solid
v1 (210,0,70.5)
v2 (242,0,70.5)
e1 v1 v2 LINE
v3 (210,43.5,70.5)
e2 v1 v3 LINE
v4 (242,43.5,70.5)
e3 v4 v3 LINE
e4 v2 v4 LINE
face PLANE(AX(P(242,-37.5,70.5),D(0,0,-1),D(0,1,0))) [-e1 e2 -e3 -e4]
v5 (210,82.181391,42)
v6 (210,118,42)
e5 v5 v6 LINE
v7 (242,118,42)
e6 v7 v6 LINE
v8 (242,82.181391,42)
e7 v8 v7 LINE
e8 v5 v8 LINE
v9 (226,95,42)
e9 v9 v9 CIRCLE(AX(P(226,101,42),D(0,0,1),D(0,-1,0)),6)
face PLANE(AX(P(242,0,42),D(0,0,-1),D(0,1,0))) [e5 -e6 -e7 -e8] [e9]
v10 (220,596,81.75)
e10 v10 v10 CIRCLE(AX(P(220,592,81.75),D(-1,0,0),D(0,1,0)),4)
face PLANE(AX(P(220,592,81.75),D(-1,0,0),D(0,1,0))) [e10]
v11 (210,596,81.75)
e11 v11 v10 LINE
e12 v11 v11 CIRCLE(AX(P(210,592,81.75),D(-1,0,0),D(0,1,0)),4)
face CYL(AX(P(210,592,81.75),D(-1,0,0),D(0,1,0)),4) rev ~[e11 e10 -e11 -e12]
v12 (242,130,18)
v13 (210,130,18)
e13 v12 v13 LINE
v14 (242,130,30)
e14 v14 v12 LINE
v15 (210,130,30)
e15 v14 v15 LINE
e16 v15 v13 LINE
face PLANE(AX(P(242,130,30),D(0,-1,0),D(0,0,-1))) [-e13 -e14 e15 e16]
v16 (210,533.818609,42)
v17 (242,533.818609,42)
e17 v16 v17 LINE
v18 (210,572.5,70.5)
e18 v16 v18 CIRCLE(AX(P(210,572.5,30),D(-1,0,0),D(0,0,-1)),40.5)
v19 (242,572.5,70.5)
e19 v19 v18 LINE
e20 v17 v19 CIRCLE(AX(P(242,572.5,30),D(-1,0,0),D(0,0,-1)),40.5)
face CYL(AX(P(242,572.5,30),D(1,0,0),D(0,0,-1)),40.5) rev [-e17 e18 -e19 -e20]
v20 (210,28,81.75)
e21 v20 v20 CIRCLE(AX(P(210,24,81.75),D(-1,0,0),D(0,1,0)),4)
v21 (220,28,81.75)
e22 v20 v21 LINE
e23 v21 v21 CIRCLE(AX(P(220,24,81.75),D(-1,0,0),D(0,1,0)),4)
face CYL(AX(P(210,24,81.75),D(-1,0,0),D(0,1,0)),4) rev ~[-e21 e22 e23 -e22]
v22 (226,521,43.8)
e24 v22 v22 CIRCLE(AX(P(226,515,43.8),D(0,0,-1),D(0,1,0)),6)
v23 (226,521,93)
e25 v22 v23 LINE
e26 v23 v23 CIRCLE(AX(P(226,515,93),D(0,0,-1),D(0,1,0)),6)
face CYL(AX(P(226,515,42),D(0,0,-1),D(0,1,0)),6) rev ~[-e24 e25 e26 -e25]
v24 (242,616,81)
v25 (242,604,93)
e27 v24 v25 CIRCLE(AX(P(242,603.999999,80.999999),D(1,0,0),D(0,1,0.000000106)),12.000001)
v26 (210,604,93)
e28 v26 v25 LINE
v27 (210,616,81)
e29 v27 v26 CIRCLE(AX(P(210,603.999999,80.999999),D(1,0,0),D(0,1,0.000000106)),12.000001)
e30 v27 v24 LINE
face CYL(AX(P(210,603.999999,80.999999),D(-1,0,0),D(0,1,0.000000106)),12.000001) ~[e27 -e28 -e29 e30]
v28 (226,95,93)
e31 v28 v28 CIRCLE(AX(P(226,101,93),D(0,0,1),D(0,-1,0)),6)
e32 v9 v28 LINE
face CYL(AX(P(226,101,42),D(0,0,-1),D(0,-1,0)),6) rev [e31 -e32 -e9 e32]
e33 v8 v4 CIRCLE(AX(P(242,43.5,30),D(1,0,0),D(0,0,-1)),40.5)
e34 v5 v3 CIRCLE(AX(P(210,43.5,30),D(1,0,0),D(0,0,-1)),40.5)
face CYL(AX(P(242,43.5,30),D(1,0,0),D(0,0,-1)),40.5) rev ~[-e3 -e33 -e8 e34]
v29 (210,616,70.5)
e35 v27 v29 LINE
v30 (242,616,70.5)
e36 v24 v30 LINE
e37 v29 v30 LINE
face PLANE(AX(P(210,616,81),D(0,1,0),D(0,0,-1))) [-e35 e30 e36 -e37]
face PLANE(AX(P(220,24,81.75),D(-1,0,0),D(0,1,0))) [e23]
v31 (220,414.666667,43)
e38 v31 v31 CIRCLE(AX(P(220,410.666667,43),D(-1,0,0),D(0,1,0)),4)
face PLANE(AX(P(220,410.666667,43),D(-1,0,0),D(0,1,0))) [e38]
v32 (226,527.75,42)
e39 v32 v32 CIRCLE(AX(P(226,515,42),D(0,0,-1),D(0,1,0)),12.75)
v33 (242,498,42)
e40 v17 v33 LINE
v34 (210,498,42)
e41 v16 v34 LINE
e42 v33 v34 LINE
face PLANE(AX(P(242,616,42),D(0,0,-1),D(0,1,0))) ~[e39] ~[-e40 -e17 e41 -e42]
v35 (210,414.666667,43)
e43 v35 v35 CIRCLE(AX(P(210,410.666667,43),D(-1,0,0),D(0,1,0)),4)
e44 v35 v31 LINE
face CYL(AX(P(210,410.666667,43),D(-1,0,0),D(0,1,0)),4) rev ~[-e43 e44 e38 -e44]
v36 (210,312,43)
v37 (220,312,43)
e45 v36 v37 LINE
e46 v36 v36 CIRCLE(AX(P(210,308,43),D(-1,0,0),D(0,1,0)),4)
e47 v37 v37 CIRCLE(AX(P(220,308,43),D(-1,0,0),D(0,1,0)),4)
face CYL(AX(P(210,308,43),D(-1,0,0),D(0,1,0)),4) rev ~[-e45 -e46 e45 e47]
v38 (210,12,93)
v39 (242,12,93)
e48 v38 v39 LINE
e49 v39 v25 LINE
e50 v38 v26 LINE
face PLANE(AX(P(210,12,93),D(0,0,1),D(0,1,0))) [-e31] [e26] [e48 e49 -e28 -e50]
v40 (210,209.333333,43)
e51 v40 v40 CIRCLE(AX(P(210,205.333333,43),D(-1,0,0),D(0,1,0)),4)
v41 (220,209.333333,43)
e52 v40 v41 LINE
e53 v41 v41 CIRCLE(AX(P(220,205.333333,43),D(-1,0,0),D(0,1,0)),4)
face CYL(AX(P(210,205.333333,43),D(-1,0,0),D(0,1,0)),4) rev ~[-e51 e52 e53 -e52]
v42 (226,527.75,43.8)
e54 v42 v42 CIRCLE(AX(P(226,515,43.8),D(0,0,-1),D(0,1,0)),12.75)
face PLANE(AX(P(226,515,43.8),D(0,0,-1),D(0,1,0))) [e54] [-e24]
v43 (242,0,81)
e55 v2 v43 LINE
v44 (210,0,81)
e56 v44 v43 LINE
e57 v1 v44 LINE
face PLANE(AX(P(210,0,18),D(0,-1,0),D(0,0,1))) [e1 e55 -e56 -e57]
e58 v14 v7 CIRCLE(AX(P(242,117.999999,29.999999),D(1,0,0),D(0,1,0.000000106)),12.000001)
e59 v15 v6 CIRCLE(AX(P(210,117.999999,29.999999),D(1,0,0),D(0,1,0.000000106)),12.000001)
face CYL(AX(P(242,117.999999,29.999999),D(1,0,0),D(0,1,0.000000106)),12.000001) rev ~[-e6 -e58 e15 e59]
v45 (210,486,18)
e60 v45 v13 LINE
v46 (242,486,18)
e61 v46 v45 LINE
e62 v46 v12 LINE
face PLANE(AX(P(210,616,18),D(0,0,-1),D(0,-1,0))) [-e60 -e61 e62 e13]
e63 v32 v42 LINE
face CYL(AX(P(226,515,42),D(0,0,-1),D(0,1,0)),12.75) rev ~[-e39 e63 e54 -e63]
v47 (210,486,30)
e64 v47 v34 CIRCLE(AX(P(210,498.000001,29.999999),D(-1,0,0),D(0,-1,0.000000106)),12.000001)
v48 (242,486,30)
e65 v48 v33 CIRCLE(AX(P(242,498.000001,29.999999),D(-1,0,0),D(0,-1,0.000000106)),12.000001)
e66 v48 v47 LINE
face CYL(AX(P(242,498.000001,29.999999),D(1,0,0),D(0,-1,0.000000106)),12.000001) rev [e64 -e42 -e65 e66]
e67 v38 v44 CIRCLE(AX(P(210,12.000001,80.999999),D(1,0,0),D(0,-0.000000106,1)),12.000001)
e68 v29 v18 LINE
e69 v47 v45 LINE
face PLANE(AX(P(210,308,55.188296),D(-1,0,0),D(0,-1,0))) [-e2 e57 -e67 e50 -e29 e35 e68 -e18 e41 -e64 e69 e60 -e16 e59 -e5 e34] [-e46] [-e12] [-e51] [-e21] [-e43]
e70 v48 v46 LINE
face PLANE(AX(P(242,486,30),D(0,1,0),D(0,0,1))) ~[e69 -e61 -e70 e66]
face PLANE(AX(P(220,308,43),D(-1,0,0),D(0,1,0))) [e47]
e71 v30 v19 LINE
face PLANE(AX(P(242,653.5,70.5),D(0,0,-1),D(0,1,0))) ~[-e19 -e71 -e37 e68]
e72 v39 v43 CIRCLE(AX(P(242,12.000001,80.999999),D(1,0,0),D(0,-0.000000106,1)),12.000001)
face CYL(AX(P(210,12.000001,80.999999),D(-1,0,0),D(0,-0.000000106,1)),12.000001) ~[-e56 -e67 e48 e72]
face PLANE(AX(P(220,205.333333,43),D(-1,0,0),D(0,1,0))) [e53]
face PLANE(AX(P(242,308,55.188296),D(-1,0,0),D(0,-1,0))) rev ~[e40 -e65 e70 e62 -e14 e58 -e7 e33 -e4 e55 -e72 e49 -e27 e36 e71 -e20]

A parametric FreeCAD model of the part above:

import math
import FreeCAD as App
import Part
import Sketcher
from FreeCAD import Vector

doc = App.newDocument("Part")
body = doc.addObject("PartDesign::Body", "Body")

# Sketch on XY plane
sketch1 = body.newObject("Sketcher::SketchObject", "Sketch")
sketch1.AttachmentSupport = (doc.getObject("XY_Plane"), [""])
sketch1.MapMode = "FlatFace"
sketch1.addGeometry(Part.LineSegment(Vector(296, 75, 0), Vector(-296, 75, 0)), False)
sketch1.addGeometry(Part.ArcOfCircle(Part.Circle(Vector(-295.999999, 62.999999, 0), Vector(0, 0, 1), 12.000001), math.radians(90.000006), math.radians(179.999994)), False)
sketch1.addGeometry(Part.LineSegment(Vector(-308, 63, 0), Vector(-308, 0, 0)), False)
sketch1.addGeometry(Part.LineSegment(Vector(-308, 0, 0), Vector(308, 0, 0)), False)
sketch1.addGeometry(Part.LineSegment(Vector(308, 0, 0), Vector(308, 63, 0)), False)
sketch1.addGeometry(Part.ArcOfCircle(Part.Circle(Vector(295.999999, 62.999999, 0), Vector(0, 0, 1), 12.000001), math.radians(0.000006), math.radians(89.999994)), False)
sketch1.addConstraint(Sketcher.Constraint("Tangent", 0, 2, 1, 1))
sketch1.addConstraint(Sketcher.Constraint("Tangent", 1, 2, 2, 1))
sketch1.addConstraint(Sketcher.Constraint("Coincident", 2, 2, 3, 1))
sketch1.addConstraint(Sketcher.Constraint("Coincident", 3, 2, 4, 1))
sketch1.addConstraint(Sketcher.Constraint("Tangent", 4, 2, 5, 1))
sketch1.addConstraint(Sketcher.Constraint("Tangent", 5, 2, 0, 1))
sketch1.addConstraint(Sketcher.Constraint("Horizontal", 0))
sketch1.addConstraint(Sketcher.Constraint("Vertical", 2))
sketch1.addConstraint(Sketcher.Constraint("Horizontal", 3))
sketch1.addConstraint(Sketcher.Constraint("Vertical", 4))
sketch1.addConstraint(Sketcher.Constraint("Equal", 1, 5))
sketch1.addConstraint(Sketcher.Constraint("Symmetric", 2, 2, 3, 2, -1, 1))
sketch1.addConstraint(Sketcher.Constraint("Radius", 1, 12.000001))
sketch1.addConstraint(Sketcher.Constraint("DistanceX", 0, 2, 0, 1, 592.0))
sketch1.addConstraint(Sketcher.Constraint("DistanceY", 2, 2, 2, 1, 63.0))
pad1 = body.newObject("PartDesign::Pad", "Pad")
pad1.Profile = sketch1
pad1.Length = 32

# Sketch on XY plane
sketch2 = body.newObject("Sketcher::SketchObject", "Sketch001")
sketch2.AttachmentSupport = (doc.getObject("XY_Plane"), [""])
sketch2.MapMode = "FlatFace"
sketch2.AttachmentOffset = App.Placement(Vector(0, 0, 32), App.Rotation())
sketch2.addGeometry(Part.LineSegment(Vector(-190, 24, 0), Vector(-308, 24, 0)), False)
sketch2.addGeometry(Part.LineSegment(Vector(-308, 24, 0), Vector(-308, 0, 0)), False)
sketch2.addGeometry(Part.LineSegment(Vector(-308, 0, 0), Vector(-178, 0, 0)), False)
sketch2.addGeometry(Part.LineSegment(Vector(-178, 0, 0), Vector(-178, 12, 0)), False)
sketch2.addGeometry(Part.ArcOfCircle(Part.Circle(Vector(-190.000001, 11.999999, 0), Vector(0, 0, 1), 12.000001), math.radians(0.000006), math.radians(89.999994)), False)
sketch2.addConstraint(Sketcher.Constraint("Coincident", 0, 2, 1, 1))
sketch2.addConstraint(Sketcher.Constraint("Coincident", 1, 2, 2, 1))
sketch2.addConstraint(Sketcher.Constraint("Coincident", 2, 2, 3, 1))
sketch2.addConstraint(Sketcher.Constraint("Tangent", 3, 2, 4, 1))
sketch2.addConstraint(Sketcher.Constraint("Tangent", 4, 2, 0, 1))
sketch2.addConstraint(Sketcher.Constraint("Horizontal", 0))
sketch2.addConstraint(Sketcher.Constraint("Vertical", 1))
sketch2.addConstraint(Sketcher.Constraint("Horizontal", 2))
sketch2.addConstraint(Sketcher.Constraint("Vertical", 3))
sketch2.addConstraint(Sketcher.Constraint("PointOnObject", 1, 2, -1))
sketch2.addConstraint(Sketcher.Constraint("Radius", 4, 12.000001))
sketch2.addConstraint(Sketcher.Constraint("DistanceX", 0, 2, 0, 1, 118.0))
sketch2.addConstraint(Sketcher.Constraint("DistanceY", 1, 2, 1, 1, 24.0))
sketch2.addConstraint(Sketcher.Constraint("DistanceX", 4, 3, -1, 1, 190.000001))
pocket1 = body.newObject("PartDesign::Pocket", "Pocket")
pocket1.Profile = sketch2
pocket1.Length = 32
doc.recompute()

mirrored = body.newObject("PartDesign::Mirrored", "Mirrored")
mirrored.Originals = [pocket1]
mirrored.MirrorPlane = (doc.getObject("YZ_Plane"), [""])
body.Tip = mirrored

# Sketch on XY plane
sketch3 = body.newObject("Sketcher::SketchObject", "Sketch002")
sketch3.AttachmentSupport = (doc.getObject("XY_Plane"), [""])
sketch3.MapMode = "FlatFace"
sketch3.AttachmentOffset = App.Placement(Vector(0, 0, 32), App.Rotation())
sketch3.addGeometry(Part.ArcOfCircle(Part.Circle(Vector(-264.5, 12, 0), Vector(0, 0, 1), 40.5), math.radians(-90), math.radians(90)), False)
sketch3.addGeometry(Part.LineSegment(Vector(-264.5, 52.5, 0), Vector(-345.5, 52.5, 0)), False)
sketch3.addGeometry(Part.LineSegment(Vector(-345.5, 52.5, 0), Vector(-345.5, -28.5, 0)), False)
sketch3.addGeometry(Part.LineSegment(Vector(-345.5, -28.5, 0), Vector(-264.5, -28.5, 0)), False)
sketch3.addConstraint(Sketcher.Constraint("Tangent", 0, 2, 1, 1))
sketch3.addConstraint(Sketcher.Constraint("Coincident", 1, 2, 2, 1))
sketch3.addConstraint(Sketcher.Constraint("Coincident", 2, 2, 3, 1))
sketch3.addConstraint(Sketcher.Constraint("Tangent", 3, 2, 0, 1))
sketch3.addConstraint(Sketcher.Constraint("Horizontal", 1))
sketch3.addConstraint(Sketcher.Constraint("Vertical", 2))
sketch3.addConstraint(Sketcher.Constraint("Horizontal", 3))
sketch3.addConstraint(Sketcher.Constraint("Equal", 3, 2))
sketch3.addConstraint(Sketcher.Constraint("Radius", 0, 40.5))
sketch3.addConstraint(Sketcher.Constraint("DistanceY", -1, 1, 0, 3, 12.0))
sketch3.addConstraint(Sketcher.Constraint("DistanceX", 0, 3, -1, 1, 264.5))
pocket2 = body.newObject("PartDesign::Pocket", "Pocket001")
pocket2.Profile = sketch3
pocket2.Length = 32
doc.recompute()

mirrored2 = body.newObject("PartDesign::Mirrored", "Mirrored001")
mirrored2.Originals = [pocket2]
mirrored2.MirrorPlane = (doc.getObject("YZ_Plane"), [""])
body.Tip = mirrored2

# Sketch on XY plane
sketch4 = body.newObject("Sketcher::SketchObject", "Sketch003")
sketch4.AttachmentSupport = (doc.getObject("XY_Plane"), [""])
sketch4.MapMode = "FlatFace"
sketch4.addGeometry(Part.Circle(Vector(-284, 63.75, 0), Vector(0, 0, 1), 4), False)
sketch4.addGeometry(Part.Circle(Vector(-102.666667, 25, 0), Vector(0, 0, 1), 4), False)
sketch4.addGeometry(Part.Circle(Vector(0, 25, 0), Vector(0, 0, 1), 4), False)
sketch4.addGeometry(Part.Circle(Vector(102.666667, 25, 0), Vector(0, 0, 1), 4), False)
sketch4.addGeometry(Part.Circle(Vector(284, 63.75, 0), Vector(0, 0, 1), 4), False)
sketch4.addConstraint(Sketcher.Constraint("Equal", 0, 1))
sketch4.addConstraint(Sketcher.Constraint("Equal", 1, 2))
sketch4.addConstraint(Sketcher.Constraint("Equal", 2, 3))
sketch4.addConstraint(Sketcher.Constraint("Equal", 3, 4))
sketch4.addConstraint(Sketcher.Constraint("Symmetric", 1, 3, 3, 3, -2))
sketch4.addConstraint(Sketcher.Constraint("Symmetric", 0, 3, 4, 3, -2))
sketch4.addConstraint(Sketcher.Constraint("PointOnObject", 2, 3, -2))
sketch4.addConstraint(Sketcher.Constraint("Horizontal", 1, 3, 2, 3))
sketch4.addConstraint(Sketcher.Constraint("Diameter", 0, 8.0))
sketch4.addConstraint(Sketcher.Constraint("DistanceX", 0, 3, -1, 1, 284.0))
sketch4.addConstraint(Sketcher.Constraint("DistanceY", -1, 1, 1, 3, 25.0))
sketch4.addConstraint(Sketcher.Constraint("DistanceY", -1, 1, 0, 3, 63.75))
sketch4.addConstraint(Sketcher.Constraint("DistanceX", 1, 3, -1, 1, 102.666667))
pocket3 = body.newObject("PartDesign::Pocket", "Pocket002")
pocket3.Profile = sketch4
pocket3.Length = 10
pocket3.Reversed = True

# Sketch on XZ plane
sketch5 = body.newObject("Sketcher::SketchObject", "Sketch004")
sketch5.AttachmentSupport = (doc.getObject("XZ_Plane"), [""])
sketch5.MapMode = "FlatFace"
sketch5.AttachmentOffset = App.Placement(Vector(0, 0, -24), App.Rotation())
sketch5.addGeometry(Part.Circle(Vector(207, 16, 0), Vector(0, 0, 1), 6), False)
sketch5.addConstraint(Sketcher.Constraint("Diameter", 0, 12.0))
sketch5.addConstraint(Sketcher.Constraint("DistanceX", -1, 1, 0, 3, 207.0))
sketch5.addConstraint(Sketcher.Constraint("DistanceY", -1, 1, 0, 3, 16.0))
pocket4 = body.newObject("PartDesign::Pocket", "Pocket003")
pocket4.Profile = sketch5
pocket4.Length = 51

# Sketch on XZ plane
sketch6 = body.newObject("Sketcher::SketchObject", "Sketch005")
sketch6.AttachmentSupport = (doc.getObject("XZ_Plane"), [""])
sketch6.MapMode = "FlatFace"
sketch6.AttachmentOffset = App.Placement(Vector(0, 0, -24), App.Rotation())
sketch6.addGeometry(Part.Circle(Vector(207, 16, 0), Vector(0, 0, 1), 12.75), False)
sketch6.addConstraint(Sketcher.Constraint("Diameter", 0, 25.5))
sketch6.addConstraint(Sketcher.Constraint("DistanceX", -1, 1, 0, 3, 207.0))
sketch6.addConstraint(Sketcher.Constraint("DistanceY", -1, 1, 0, 3, 16.0))
pocket5 = body.newObject("PartDesign::Pocket", "Pocket004")
pocket5.Profile = sketch6
pocket5.Length = 1.8
doc.recompute()

mirrored3 = body.newObject("PartDesign::Mirrored", "Mirrored002")
mirrored3.Originals = [pocket4]
mirrored3.MirrorPlane = (doc.getObject("YZ_Plane"), [""])
body.Tip = mirrored3
body2 = doc.addObject("PartDesign::Body", "Body001")
doc.recompute()

body.Placement = App.Placement(Vector(0, 0, 0), App.Rotation(Vector(1, 0, 0), 90))
boolean = body2.newObject("PartDesign::Boolean", "Boolean")
boolean.Type = "Fuse"
boolean.addObjects([body])
body3 = doc.addObject("PartDesign::Body", "Body002")
doc.recompute()

body2.Placement = App.Placement(Vector(210, 308, 18), App.Rotation(Vector(0, 0, 1), 90))
boolean2 = body3.newObject("PartDesign::Boolean", "Boolean001")
boolean2.Type = "Fuse"
boolean2.addObjects([body2])

doc.recompute()
